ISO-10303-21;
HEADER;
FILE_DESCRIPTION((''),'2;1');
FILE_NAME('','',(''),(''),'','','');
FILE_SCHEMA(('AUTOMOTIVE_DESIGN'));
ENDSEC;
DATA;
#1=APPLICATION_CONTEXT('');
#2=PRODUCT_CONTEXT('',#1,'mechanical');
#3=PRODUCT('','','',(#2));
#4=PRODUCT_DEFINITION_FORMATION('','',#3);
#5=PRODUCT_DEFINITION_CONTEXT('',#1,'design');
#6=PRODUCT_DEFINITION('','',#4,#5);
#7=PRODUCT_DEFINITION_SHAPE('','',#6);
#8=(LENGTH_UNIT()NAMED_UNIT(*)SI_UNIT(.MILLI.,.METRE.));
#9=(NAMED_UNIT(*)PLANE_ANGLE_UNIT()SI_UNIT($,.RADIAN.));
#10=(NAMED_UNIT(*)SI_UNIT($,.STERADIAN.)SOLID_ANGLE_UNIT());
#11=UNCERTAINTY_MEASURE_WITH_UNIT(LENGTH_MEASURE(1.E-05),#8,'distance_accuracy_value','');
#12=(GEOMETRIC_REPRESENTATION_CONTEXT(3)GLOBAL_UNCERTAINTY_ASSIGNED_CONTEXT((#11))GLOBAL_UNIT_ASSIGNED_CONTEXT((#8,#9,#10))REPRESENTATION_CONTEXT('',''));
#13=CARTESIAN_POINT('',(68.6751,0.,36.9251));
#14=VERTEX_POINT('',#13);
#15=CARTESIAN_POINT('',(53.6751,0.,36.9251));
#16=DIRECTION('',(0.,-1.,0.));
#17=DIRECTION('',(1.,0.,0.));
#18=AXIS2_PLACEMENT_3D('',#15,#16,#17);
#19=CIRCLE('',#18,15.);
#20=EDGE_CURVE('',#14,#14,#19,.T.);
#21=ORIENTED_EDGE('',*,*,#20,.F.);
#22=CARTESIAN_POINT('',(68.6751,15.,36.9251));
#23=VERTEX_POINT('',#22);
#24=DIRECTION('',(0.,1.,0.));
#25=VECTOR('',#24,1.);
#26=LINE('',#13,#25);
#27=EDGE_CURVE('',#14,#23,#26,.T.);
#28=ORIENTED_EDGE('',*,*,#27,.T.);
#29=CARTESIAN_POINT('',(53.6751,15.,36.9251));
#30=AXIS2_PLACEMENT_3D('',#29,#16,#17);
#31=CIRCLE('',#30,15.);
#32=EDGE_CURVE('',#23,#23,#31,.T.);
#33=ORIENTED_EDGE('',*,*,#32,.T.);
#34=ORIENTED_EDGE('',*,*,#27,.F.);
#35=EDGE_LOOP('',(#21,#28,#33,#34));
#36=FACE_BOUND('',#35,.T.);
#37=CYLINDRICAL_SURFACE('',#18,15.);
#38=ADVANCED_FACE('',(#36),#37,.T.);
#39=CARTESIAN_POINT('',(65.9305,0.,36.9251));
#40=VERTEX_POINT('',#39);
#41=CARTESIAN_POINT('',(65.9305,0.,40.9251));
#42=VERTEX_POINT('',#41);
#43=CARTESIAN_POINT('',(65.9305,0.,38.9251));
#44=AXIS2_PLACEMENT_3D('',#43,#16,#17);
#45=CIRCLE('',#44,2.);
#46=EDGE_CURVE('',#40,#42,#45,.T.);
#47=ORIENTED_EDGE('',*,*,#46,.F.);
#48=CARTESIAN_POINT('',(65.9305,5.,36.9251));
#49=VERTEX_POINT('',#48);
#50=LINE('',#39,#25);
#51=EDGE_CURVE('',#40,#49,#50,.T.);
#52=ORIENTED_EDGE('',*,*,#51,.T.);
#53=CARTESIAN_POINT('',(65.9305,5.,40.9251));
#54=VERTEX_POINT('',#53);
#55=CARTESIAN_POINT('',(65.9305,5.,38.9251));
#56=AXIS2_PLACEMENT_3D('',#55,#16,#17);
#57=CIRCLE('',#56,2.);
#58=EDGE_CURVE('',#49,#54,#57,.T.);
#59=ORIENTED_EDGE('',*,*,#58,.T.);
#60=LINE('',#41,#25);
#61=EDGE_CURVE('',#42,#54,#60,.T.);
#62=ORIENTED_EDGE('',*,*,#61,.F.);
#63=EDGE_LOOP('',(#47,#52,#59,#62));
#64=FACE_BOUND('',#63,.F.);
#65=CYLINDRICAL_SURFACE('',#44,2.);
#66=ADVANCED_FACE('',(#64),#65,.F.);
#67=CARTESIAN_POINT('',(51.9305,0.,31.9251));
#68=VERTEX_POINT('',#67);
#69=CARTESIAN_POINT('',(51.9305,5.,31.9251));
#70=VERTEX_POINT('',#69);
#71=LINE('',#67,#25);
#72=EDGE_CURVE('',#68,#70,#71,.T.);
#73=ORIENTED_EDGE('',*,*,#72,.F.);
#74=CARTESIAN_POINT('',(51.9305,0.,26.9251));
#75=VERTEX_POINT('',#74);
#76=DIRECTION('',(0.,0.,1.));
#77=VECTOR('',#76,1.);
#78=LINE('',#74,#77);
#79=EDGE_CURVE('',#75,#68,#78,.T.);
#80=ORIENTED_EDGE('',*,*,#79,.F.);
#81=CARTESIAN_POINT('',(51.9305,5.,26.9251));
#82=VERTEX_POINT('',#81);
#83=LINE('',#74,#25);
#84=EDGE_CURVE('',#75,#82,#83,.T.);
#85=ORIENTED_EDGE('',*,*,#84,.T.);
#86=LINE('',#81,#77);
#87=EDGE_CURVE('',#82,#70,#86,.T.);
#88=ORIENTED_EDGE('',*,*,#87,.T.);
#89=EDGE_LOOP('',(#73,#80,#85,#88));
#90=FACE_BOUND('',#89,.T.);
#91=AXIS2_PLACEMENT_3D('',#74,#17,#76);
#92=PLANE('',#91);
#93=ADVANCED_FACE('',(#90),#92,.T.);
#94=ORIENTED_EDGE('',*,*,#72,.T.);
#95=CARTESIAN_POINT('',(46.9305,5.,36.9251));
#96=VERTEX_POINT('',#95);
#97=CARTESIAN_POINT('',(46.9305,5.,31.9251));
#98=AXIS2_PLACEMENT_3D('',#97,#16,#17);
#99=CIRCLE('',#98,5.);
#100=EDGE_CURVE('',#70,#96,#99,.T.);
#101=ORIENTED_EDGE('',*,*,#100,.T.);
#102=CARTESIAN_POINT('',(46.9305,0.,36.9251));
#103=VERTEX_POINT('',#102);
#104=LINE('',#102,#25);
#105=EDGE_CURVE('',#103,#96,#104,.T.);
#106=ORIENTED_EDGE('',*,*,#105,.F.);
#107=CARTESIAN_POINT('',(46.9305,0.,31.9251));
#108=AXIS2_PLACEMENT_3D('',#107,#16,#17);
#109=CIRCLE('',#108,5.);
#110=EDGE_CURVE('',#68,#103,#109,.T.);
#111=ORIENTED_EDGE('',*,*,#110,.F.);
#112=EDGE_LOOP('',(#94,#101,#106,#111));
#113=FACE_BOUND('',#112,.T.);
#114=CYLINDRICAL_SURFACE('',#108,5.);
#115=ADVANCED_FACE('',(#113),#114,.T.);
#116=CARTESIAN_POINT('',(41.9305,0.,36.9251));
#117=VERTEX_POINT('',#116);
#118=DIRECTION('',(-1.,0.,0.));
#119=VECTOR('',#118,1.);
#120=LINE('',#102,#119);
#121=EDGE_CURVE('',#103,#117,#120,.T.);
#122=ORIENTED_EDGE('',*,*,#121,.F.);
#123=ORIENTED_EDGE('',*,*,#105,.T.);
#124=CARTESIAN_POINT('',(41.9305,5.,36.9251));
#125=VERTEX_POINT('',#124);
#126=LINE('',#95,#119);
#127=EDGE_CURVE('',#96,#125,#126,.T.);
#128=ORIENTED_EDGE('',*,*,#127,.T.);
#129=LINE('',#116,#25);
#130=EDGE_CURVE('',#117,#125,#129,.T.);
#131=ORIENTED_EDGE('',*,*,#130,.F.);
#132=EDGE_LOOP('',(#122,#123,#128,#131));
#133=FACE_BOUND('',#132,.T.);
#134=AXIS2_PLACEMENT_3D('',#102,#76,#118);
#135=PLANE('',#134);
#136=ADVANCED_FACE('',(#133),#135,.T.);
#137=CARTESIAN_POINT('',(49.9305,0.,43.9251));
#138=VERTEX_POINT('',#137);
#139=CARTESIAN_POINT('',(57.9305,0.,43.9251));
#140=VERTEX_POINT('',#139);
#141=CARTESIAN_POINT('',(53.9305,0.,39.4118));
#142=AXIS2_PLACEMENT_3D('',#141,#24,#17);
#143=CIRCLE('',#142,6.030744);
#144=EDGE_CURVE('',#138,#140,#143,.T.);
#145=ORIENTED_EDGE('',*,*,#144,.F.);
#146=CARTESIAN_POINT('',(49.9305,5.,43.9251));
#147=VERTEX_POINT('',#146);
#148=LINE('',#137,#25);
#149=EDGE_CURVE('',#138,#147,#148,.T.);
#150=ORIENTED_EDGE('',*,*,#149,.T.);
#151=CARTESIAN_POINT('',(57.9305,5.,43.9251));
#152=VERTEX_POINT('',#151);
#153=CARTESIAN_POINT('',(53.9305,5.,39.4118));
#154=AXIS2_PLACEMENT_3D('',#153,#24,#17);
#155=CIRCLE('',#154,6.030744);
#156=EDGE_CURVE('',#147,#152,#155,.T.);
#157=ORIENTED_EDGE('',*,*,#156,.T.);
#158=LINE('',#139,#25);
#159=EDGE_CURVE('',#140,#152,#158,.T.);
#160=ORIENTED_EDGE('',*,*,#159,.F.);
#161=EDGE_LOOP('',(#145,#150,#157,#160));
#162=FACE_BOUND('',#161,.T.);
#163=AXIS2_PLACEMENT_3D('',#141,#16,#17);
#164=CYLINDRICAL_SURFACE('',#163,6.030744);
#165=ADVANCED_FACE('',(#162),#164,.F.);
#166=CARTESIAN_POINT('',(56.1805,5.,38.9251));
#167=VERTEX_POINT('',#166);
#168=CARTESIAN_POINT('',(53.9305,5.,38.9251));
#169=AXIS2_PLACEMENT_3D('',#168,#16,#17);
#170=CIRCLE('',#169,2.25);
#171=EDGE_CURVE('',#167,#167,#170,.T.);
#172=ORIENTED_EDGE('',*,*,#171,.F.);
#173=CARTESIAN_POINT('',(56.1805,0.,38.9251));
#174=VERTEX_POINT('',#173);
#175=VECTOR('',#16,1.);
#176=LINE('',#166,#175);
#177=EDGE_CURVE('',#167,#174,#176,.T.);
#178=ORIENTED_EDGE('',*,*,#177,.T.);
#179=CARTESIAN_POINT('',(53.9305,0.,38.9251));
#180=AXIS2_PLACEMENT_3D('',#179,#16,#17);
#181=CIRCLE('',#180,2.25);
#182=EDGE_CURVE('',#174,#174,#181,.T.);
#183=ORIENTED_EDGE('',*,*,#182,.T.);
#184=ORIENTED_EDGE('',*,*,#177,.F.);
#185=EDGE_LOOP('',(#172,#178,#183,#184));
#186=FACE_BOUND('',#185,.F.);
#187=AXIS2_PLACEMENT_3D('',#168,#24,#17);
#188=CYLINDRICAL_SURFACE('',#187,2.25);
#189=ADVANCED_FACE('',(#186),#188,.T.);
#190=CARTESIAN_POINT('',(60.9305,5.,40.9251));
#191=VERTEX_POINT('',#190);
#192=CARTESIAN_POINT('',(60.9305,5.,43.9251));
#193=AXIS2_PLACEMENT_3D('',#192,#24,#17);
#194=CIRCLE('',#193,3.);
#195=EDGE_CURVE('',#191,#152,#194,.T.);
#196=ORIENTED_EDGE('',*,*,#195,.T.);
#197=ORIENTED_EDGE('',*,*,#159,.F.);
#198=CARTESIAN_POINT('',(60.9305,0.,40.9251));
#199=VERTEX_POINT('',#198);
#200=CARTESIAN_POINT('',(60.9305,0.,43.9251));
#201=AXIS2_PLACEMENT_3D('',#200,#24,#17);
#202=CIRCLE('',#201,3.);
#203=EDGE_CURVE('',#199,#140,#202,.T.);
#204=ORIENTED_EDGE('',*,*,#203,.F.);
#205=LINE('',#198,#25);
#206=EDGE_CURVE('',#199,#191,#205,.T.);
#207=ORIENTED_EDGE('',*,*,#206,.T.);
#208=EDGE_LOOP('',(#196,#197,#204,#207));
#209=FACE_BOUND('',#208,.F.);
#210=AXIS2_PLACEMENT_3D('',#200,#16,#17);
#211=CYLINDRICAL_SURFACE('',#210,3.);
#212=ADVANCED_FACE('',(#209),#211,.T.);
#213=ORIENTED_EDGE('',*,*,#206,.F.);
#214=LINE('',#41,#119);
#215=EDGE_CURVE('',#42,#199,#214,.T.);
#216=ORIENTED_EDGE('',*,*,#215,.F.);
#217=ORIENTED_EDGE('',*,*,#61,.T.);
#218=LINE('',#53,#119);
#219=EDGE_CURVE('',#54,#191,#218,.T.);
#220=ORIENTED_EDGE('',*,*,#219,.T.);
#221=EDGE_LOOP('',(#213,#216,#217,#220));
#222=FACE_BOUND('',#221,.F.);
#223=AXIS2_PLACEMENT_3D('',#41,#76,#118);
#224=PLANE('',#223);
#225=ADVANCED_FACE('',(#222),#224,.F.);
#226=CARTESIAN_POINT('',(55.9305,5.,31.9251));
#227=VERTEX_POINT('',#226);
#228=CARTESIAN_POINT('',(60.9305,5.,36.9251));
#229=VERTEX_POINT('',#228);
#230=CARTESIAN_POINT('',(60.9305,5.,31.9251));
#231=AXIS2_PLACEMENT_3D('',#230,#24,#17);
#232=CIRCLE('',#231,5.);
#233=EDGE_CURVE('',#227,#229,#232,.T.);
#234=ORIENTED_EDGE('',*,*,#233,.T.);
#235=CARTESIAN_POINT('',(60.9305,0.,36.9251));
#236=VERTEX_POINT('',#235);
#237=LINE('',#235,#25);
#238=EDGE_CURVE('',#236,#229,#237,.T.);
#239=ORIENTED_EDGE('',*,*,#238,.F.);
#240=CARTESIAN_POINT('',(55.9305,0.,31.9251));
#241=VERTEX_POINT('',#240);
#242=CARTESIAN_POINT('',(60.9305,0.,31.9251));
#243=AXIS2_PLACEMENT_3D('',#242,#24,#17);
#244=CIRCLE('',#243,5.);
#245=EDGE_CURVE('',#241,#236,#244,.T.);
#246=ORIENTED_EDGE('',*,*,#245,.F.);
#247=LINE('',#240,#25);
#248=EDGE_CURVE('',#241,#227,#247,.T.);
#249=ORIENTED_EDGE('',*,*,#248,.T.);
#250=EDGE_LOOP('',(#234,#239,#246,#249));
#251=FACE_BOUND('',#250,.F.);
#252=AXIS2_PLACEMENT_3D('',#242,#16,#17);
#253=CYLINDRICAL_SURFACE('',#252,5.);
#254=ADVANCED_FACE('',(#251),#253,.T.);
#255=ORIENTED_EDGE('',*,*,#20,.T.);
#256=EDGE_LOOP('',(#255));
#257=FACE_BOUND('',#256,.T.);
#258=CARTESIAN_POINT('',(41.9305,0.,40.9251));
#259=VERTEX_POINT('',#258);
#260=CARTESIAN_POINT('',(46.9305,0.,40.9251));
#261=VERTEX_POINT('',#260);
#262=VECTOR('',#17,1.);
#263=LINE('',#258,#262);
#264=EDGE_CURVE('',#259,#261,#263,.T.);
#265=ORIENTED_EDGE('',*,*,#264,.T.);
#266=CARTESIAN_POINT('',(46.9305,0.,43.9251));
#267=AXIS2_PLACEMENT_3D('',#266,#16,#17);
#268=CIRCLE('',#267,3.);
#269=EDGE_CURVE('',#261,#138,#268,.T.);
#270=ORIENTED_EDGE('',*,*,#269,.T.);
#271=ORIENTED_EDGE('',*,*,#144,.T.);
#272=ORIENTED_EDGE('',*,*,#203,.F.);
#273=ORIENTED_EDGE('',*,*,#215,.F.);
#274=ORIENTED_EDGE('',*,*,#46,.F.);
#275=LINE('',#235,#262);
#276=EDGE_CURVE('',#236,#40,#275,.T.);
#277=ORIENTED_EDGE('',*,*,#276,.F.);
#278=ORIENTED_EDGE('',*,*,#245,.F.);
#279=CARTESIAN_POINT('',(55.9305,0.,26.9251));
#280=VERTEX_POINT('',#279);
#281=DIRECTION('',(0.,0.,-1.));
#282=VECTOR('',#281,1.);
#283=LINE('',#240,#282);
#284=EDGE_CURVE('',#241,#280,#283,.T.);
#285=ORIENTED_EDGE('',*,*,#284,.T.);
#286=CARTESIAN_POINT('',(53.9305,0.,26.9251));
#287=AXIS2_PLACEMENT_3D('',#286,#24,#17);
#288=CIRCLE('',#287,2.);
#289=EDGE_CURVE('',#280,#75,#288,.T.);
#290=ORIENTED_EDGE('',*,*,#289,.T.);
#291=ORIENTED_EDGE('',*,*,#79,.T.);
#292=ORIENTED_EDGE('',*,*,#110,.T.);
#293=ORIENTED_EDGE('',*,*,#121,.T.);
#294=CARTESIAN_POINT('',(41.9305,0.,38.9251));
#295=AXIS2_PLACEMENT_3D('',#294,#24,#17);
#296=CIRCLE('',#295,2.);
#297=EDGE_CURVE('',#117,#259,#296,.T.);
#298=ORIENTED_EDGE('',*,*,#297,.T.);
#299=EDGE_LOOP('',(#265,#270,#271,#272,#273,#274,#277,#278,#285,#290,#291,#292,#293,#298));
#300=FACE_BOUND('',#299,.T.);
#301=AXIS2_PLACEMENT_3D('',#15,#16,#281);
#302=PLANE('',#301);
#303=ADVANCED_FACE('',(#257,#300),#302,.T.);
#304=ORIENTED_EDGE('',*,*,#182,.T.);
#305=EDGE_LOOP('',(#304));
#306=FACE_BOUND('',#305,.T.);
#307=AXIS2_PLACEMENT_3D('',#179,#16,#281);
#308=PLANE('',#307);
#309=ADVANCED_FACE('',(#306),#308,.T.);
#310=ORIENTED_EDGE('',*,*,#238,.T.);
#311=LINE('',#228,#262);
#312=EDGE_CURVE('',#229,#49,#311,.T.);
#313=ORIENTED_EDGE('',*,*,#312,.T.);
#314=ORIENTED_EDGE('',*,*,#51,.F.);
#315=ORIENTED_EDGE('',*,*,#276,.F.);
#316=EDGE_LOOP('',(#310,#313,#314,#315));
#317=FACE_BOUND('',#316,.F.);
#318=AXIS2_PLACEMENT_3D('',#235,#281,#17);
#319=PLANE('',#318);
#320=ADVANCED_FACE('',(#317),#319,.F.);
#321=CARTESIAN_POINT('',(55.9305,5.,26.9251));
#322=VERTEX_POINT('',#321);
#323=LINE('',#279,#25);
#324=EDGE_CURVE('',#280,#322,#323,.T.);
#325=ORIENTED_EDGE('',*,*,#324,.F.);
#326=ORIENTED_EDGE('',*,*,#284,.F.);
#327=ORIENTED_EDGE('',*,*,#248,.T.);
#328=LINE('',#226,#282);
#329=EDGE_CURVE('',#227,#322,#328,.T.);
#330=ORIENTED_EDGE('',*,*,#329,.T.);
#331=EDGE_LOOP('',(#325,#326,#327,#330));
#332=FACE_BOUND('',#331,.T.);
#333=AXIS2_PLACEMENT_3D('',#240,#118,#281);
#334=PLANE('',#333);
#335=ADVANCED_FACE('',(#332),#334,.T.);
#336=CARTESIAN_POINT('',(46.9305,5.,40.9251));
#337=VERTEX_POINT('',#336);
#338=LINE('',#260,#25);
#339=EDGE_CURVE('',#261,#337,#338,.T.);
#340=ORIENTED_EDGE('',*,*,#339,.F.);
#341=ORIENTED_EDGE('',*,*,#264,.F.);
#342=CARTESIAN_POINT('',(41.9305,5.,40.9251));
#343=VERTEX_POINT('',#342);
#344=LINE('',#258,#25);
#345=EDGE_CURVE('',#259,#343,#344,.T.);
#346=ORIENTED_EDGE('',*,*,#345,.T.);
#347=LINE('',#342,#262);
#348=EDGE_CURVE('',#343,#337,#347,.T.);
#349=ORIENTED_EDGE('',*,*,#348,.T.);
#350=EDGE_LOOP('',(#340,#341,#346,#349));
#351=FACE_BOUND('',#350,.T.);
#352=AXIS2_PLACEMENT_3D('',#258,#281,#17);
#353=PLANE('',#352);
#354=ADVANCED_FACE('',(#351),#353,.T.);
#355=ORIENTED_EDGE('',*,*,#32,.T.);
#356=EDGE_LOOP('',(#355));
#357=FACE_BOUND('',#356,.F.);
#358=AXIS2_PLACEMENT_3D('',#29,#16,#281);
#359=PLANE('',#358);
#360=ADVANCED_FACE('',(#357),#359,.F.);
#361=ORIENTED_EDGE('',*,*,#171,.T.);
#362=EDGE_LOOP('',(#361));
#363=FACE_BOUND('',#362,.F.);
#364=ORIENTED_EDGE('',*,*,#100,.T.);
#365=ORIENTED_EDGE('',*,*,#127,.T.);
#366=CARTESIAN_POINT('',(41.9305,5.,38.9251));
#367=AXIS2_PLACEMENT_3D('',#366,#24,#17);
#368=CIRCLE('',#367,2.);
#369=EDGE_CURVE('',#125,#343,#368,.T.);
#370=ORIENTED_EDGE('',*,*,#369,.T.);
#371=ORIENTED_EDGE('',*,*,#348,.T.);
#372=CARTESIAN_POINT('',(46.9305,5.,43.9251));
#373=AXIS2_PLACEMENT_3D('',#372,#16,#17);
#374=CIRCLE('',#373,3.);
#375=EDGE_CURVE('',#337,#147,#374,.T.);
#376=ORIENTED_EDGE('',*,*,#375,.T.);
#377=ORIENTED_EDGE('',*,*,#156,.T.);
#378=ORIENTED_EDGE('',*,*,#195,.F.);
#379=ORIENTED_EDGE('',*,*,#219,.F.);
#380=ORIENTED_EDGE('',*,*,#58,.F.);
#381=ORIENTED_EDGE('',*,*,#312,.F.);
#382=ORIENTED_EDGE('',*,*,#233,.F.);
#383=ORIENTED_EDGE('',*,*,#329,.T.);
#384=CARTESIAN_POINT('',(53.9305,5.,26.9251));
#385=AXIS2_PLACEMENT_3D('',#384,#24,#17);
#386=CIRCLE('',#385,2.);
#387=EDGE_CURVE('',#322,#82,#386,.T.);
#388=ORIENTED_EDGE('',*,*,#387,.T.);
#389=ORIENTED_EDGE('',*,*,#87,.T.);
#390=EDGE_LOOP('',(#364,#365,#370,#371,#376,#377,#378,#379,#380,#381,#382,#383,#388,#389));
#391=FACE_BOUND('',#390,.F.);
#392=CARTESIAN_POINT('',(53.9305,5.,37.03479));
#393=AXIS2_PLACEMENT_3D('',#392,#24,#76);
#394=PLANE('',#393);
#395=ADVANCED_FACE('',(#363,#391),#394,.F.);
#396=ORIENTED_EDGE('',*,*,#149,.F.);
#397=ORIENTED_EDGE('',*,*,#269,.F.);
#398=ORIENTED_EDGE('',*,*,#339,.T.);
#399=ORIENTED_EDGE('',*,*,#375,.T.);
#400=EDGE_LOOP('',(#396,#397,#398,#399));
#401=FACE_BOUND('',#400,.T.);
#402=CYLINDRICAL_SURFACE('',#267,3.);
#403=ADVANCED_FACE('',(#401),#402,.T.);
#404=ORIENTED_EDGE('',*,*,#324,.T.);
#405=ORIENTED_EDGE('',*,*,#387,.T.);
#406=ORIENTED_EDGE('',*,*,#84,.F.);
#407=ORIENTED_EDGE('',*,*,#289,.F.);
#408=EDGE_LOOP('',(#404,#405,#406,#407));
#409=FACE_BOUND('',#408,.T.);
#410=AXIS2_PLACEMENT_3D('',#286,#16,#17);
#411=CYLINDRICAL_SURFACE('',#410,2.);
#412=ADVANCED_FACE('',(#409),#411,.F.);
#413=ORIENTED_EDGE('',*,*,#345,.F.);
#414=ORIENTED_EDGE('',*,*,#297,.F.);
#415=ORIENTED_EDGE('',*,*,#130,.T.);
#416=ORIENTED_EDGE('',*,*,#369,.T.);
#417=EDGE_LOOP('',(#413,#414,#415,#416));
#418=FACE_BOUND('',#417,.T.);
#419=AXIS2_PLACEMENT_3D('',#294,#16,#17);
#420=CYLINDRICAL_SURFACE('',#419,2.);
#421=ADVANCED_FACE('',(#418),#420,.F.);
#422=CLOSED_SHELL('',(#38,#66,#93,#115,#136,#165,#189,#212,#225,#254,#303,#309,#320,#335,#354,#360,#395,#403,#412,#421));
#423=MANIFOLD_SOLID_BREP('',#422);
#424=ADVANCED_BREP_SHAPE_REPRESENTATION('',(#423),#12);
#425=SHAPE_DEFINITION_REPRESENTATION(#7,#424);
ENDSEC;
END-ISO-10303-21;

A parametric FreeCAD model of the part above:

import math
import FreeCAD as App
import Part
import Sketcher
from FreeCAD import Vector
Q = App.Units.Quantity

doc = App.newDocument("Part")
body = doc.addObject("PartDesign::Body", "Body")

sketch1 = doc.addObject("Sketcher::SketchObject", "Sketch")
body.addObject(sketch1)
sketch1.AttachmentSupport = (doc.XZ_Plane, [""])
sketch1.MapMode = "FlatFace"
sketch1.addGeometry(Part.Circle(Vector(54, 37, 0), Vector(0, 0, 1), 15), False)
sketch1.addConstraint(Sketcher.Constraint("Diameter", 0, Q("30 mm")))
sketch1.addConstraint(Sketcher.Constraint("DistanceX", -1, 1, 0, 3, Q("53.675 mm")))
sketch1.addConstraint(Sketcher.Constraint("DistanceY", -1, 1, 0, 3, Q("36.925 mm")))
pad1 = doc.addObject("PartDesign::Pad", "Pad")
body.addObject(pad1)
pad1.Profile = sketch1
pad1.Length = 15
pad1.Reversed = True

sketch2 = doc.addObject("Sketcher::SketchObject", "Sketch001")
body.addObject(sketch2)
sketch2.AttachmentSupport = (doc.XZ_Plane, [""])
sketch2.MapMode = "FlatFace"
sketch2.addGeometry(Part.LineSegment(Vector(55.9, 26.9, 0), Vector(55.9, 31.9, 0)), False)
sketch2.addGeometry(Part.ArcOfCircle(Part.Circle(Vector(60.9, 31.9, 0), Vector(0, 0, 1), 5), math.radians(90), math.radians(180)), False)
sketch2.addGeometry(Part.LineSegment(Vector(60.9, 36.9, 0), Vector(65.9, 36.9, 0)), False)
sketch2.addGeometry(Part.ArcOfCircle(Part.Circle(Vector(65.9, 38.9, 0), Vector(0, 0, 1), 2), math.radians(-90), math.radians(90)), False)
sketch2.addGeometry(Part.LineSegment(Vector(65.9, 40.9, 0), Vector(60.9, 40.9, 0)), False)
sketch2.addGeometry(Part.ArcOfCircle(Part.Circle(Vector(60.9, 43.9, 0), Vector(0, 0, 1), 3), math.radians(180), math.radians(270)), False)
sketch2.addGeometry(Part.ArcOfCircle(Part.Circle(Vector(53.9, 39.4, 0), Vector(0, 0, 1), 6), math.radians(48), math.radians(132)), False)
sketch2.addGeometry(Part.ArcOfCircle(Part.Circle(Vector(46.9, 43.9, 0), Vector(0, 0, 1), 3), math.radians(-90), math.radians(0)), False)
sketch2.addGeometry(Part.LineSegment(Vector(46.9, 40.9, 0), Vector(41.9, 40.9, 0)), False)
sketch2.addGeometry(Part.ArcOfCircle(Part.Circle(Vector(41.9, 38.9, 0), Vector(0, 0, 1), 2), math.radians(90), math.radians(270)), False)
sketch2.addGeometry(Part.LineSegment(Vector(41.9, 36.9, 0), Vector(46.9, 36.9, 0)), False)
sketch2.addGeometry(Part.ArcOfCircle(Part.Circle(Vector(46.9, 31.9, 0), Vector(0, 0, 1), 5), math.radians(0), math.radians(90)), False)
sketch2.addGeometry(Part.LineSegment(Vector(51.9, 31.9, 0), Vector(51.9, 26.9, 0)), False)
sketch2.addGeometry(Part.ArcOfCircle(Part.Circle(Vector(53.9, 26.9, 0), Vector(0, 0, 1), 2), math.radians(180), math.radians(360)), False)
sketch2.addConstraint(Sketcher.Constraint("Tangent", 0, 2, 1, 2))
sketch2.addConstraint(Sketcher.Constraint("Tangent", 1, 1, 2, 1))
sketch2.addConstraint(Sketcher.Constraint("Tangent", 2, 2, 3, 1))
sketch2.addConstraint(Sketcher.Constraint("Tangent", 3, 2, 4, 1))
sketch2.addConstraint(Sketcher.Constraint("Tangent", 4, 2, 5, 2))
sketch2.addConstraint(Sketcher.Constraint("Coincident", 5, 1, 6, 1))
sketch2.addConstraint(Sketcher.Constraint("Coincident", 6, 2, 7, 2))
sketch2.addConstraint(Sketcher.Constraint("Tangent", 7, 1, 8, 1))
sketch2.addConstraint(Sketcher.Constraint("Tangent", 8, 2, 9, 1))
sketch2.addConstraint(Sketcher.Constraint("Tangent", 9, 2, 10, 1))
sketch2.addConstraint(Sketcher.Constraint("Tangent", 10, 2, 11, 2))
sketch2.addConstraint(Sketcher.Constraint("Tangent", 11, 1, 12, 1))
sketch2.addConstraint(Sketcher.Constraint("Tangent", 12, 2, 13, 1))
sketch2.addConstraint(Sketcher.Constraint("Tangent", 13, 2, 0, 1))
sketch2.addConstraint(Sketcher.Constraint("Vertical", 0))
sketch2.addConstraint(Sketcher.Constraint("Horizontal", 2))
sketch2.addConstraint(Sketcher.Constraint("Horizontal", 4))
sketch2.addConstraint(Sketcher.Constraint("Horizontal", 8))
sketch2.addConstraint(Sketcher.Constraint("Horizontal", 10))
sketch2.addConstraint(Sketcher.Constraint("Vertical", 12))
sketch2.addConstraint(Sketcher.Constraint("Equal", 5, 7))
sketch2.addConstraint(Sketcher.Constraint("Equal", 3, 9))
sketch2.addConstraint(Sketcher.Constraint("Equal", 1, 11))
sketch2.addConstraint(Sketcher.Constraint("Equal", 9, 13))
sketch2.addConstraint(Sketcher.Constraint("Horizontal", 5, 3, 7, 3))
sketch2.addConstraint(Sketcher.Constraint("Horizontal", 7, 3, 5, 1))
sketch2.addConstraint(Sketcher.Constraint("Horizontal", 5, 1, 6, 2))
sketch2.addConstraint(Sketcher.Constraint("Vertical", 1, 3, 5, 3))
sketch2.addConstraint(Sketcher.Constraint("Vertical", 7, 3, 11, 3))
sketch2.addConstraint(Sketcher.Constraint("Equal", 4, 8))
sketch2.addConstraint(Sketcher.Constraint("Equal", 10, 0))
sketch2.addConstraint(Sketcher.Constraint("Radius", 3, Q("2 mm")))
sketch2.addConstraint(Sketcher.Constraint("Radius", 5, Q("3 mm")))
sketch2.addConstraint(Sketcher.Constraint("Radius", 1, Q("5 mm")))
sketch2.addConstraint(Sketcher.Constraint("DistanceX", 6, 3, 3, 3, Q("12 mm")))
sketch2.addConstraint(Sketcher.Constraint("Radius", 6, Q("6.0307 mm")))
sketch2.addConstraint(Sketcher.Constraint("DistanceY", -1, 1, 1, 3, Q("31.925 mm")))
sketch2.addConstraint(Sketcher.Constraint("DistanceX", -1, 1, 1, 3, Q("60.9305 mm")))
pocket1 = doc.addObject("PartDesign::Pocket", "Pocket")
body.addObject(pocket1)
pocket1.Profile = sketch2
pocket1.Length = 5

sketch3 = doc.addObject("Sketcher::SketchObject", "Sketch002")
body.addObject(sketch3)
sketch3.AttachmentSupport = (doc.XZ_Plane, [""])
sketch3.MapMode = "FlatFace"
sketch3.AttachmentOffset = App.Placement(Vector(0, 0, -5), App.Rotation())
sketch3.addGeometry(Part.Circle(Vector(53.9, 38.9, 0), Vector(0, 0, 1), 2.2), False)
sketch3.addConstraint(Sketcher.Constraint("Diameter", 0, Q("4.5 mm")))
sketch3.addConstraint(Sketcher.Constraint("DistanceY", -1, 1, 0, 3, Q("38.925 mm")))
sketch3.addConstraint(Sketcher.Constraint("DistanceX", -1, 1, 0, 3, Q("53.9305 mm")))
pad2 = doc.addObject("PartDesign::Pad", "Pad001")
body.addObject(pad2)
pad2.Profile = sketch3
pad2.Length = 5

doc.recompute()
